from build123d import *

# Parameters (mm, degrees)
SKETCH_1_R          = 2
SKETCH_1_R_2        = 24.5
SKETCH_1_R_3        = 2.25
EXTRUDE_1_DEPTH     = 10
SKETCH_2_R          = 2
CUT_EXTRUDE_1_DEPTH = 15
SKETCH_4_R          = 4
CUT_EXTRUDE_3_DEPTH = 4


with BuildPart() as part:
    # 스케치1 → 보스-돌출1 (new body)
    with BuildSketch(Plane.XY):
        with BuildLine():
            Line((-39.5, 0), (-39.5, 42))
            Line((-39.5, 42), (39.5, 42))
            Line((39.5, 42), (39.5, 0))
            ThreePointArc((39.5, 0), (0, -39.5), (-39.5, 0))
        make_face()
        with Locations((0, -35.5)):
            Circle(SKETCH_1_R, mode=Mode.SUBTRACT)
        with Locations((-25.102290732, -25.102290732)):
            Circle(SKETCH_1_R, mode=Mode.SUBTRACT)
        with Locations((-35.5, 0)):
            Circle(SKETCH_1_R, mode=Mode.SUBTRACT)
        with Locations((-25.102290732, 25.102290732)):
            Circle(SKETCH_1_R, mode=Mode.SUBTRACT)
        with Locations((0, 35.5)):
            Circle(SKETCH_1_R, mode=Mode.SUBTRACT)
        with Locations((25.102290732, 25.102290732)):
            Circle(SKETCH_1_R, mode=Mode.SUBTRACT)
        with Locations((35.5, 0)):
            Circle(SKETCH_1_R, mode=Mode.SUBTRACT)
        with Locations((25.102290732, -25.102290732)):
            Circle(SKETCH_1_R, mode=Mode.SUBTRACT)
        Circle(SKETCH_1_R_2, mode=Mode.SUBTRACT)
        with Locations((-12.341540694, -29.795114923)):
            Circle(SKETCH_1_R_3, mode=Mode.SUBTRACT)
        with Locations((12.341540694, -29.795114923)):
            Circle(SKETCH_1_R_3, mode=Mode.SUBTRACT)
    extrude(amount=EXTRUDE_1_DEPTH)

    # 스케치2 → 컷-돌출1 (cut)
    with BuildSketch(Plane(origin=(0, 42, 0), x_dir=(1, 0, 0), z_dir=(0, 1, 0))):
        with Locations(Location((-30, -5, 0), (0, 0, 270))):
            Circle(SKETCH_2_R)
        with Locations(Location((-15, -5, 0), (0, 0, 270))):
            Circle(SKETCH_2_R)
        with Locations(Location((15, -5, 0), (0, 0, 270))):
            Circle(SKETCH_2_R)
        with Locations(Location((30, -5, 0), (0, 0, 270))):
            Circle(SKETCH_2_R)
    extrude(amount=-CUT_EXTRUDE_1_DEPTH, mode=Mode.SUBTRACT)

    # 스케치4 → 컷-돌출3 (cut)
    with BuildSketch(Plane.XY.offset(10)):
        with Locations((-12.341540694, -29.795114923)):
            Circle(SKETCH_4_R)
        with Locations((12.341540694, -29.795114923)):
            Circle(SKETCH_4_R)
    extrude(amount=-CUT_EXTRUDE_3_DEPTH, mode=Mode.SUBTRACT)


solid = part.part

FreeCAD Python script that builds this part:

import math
import FreeCAD as App
import Part
import Sketcher

doc = App.newDocument("Part")
body = doc.addObject("PartDesign::Body", "Body")

sketch1 = doc.addObject("Sketcher::SketchObject", "Sketch")
body.addObject(sketch1)
sketch1.AttachmentSupport = (doc.XY_Plane, [""])
sketch1.MapMode = "FlatFace"
sketch1.addGeometry(Part.LineSegment(App.Vector(-39.5, 42, 0), App.Vector(-39.5, 0, 0)), False)
sketch1.addGeometry(Part.ArcOfCircle(Part.Circle(App.Vector(0, 0, 0), App.Vector(0, 0, 1), 39.5), math.radians(180), math.radians(360)), False)
sketch1.addGeometry(Part.LineSegment(App.Vector(39.5, 0, 0), App.Vector(39.5, 42, 0)), False)
sketch1.addGeometry(Part.LineSegment(App.Vector(39.5, 42, 0), App.Vector(-39.5, 42, 0)), False)
sketch1.addGeometry(Part.Circle(App.Vector(25.1, -25.1, 0), App.Vector(0, 0, 1), 2), False)
sketch1.addGeometry(Part.Circle(App.Vector(12.3, -29.8, 0), App.Vector(0, 0, 1), 2.2), False)
sketch1.addGeometry(Part.Circle(App.Vector(0, -35.5, 0), App.Vector(0, 0, 1), 2), False)
sketch1.addGeometry(Part.Circle(App.Vector(-12.3, -29.8, 0), App.Vector(0, 0, 1), 2.2), False)
sketch1.addGeometry(Part.Circle(App.Vector(-25.1, -25.1, 0), App.Vector(0, 0, 1), 2), False)
sketch1.addGeometry(Part.Circle(App.Vector(35.5, 0, 0), App.Vector(0, 0, 1), 2), False)
sketch1.addGeometry(Part.Circle(App.Vector(25.1, 25.1, 0), App.Vector(0, 0, 1), 2), False)
sketch1.addGeometry(Part.Circle(App.Vector(0, 0, 0), App.Vector(0, 0, 1), 24.5), False)
sketch1.addGeometry(Part.Circle(App.Vector(-35.5, 0, 0), App.Vector(0, 0, 1), 2), False)
sketch1.addGeometry(Part.Circle(App.Vector(0, 35.5, 0), App.Vector(0, 0, 1), 2), False)
sketch1.addGeometry(Part.Circle(App.Vector(-25.1, 25.1, 0), App.Vector(0, 0, 1), 2), False)
sketch1.addConstraint(Sketcher.Constraint("Tangent", 0, 2, 1, 1))
sketch1.addConstraint(Sketcher.Constraint("Tangent", 1, 2, 2, 1))
sketch1.addConstraint(Sketcher.Constraint("Coincident", 2, 2, 3, 1))
sketch1.addConstraint(Sketcher.Constraint("Coincident", 3, 2, 0, 1))
sketch1.addConstraint(Sketcher.Constraint("Vertical", 0))
sketch1.addConstraint(Sketcher.Constraint("Vertical", 2))
sketch1.addConstraint(Sketcher.Constraint("Horizontal", 3))
sketch1.addConstraint(Sketcher.Constraint("Coincident", 1, 3, -1, 1))
sketch1.addConstraint(Sketcher.Constraint("Coincident", 11, 3, -1, 1))
sketch1.addConstraint(Sketcher.Constraint("Equal", 4, 6))
sketch1.addConstraint(Sketcher.Constraint("Equal", 5, 7))
sketch1.addConstraint(Sketcher.Constraint("Equal", 6, 8))
sketch1.addConstraint(Sketcher.Constraint("Equal", 8, 9))
sketch1.addConstraint(Sketcher.Constraint("Equal", 9, 10))
sketch1.addConstraint(Sketcher.Constraint("Equal", 10, 12))
sketch1.addConstraint(Sketcher.Constraint("Equal", 12, 13))
sketch1.addConstraint(Sketcher.Constraint("Equal", 13, 14))
sketch1.addConstraint(Sketcher.Constraint("Symmetric", 8, 3, 10, 3, -1, 1))
sketch1.addConstraint(Sketcher.Constraint("Symmetric", 9, 3, 12, 3, -1, 1))
sketch1.addConstraint(Sketcher.Constraint("Symmetric", 6, 3, 13, 3, -1, 1))
sketch1.addConstraint(Sketcher.Constraint("Symmetric", 4, 3, 14, 3, -1, 1))
sketch1.addConstraint(Sketcher.Constraint("Symmetric", 5, 3, 7, 3, -2))
sketch1.addConstraint(Sketcher.Constraint("Symmetric", 4, 3, 8, 3, -2))
sketch1.addConstraint(Sketcher.Constraint("PointOnObject", 6, 3, -2))
sketch1.addConstraint(Sketcher.Constraint("PointOnObject", 9, 3, -1))
sketch1.addConstraint(Sketcher.Constraint("Diameter", 4, 4.0))
sketch1.addConstraint(Sketcher.Constraint("Diameter", 11, 49.0))
sketch1.addConstraint(Sketcher.Constraint("Diameter", 5, 4.5))
sketch1.addConstraint(Sketcher.Constraint("Radius", 1, 39.5))
sketch1.addConstraint(Sketcher.Constraint("DistanceY", 0, 2, 0, 1, 42.0))
sketch1.addConstraint(Sketcher.Constraint("DistanceX", 0, 2, 12, 3, 4.0))
sketch1.addConstraint(Sketcher.Constraint("DistanceY", 6, 3, -1, 1, 35.5))
sketch1.addConstraint(Sketcher.Constraint("DistanceX", -1, 1, 4, 3, 25.102291))
sketch1.addConstraint(Sketcher.Constraint("DistanceY", 4, 3, -1, 1, 25.102291))
sketch1.addConstraint(Sketcher.Constraint("DistanceX", -1, 1, 5, 3, 12.341541))
sketch1.addConstraint(Sketcher.Constraint("DistanceY", 5, 3, -1, 1, 29.795115))
pad1 = doc.addObject("PartDesign::Pad", "Pad")
body.addObject(pad1)
pad1.Profile = sketch1
pad1.Length = 10

sketch2 = doc.addObject("Sketcher::SketchObject", "Sketch001")
body.addObject(sketch2)
sketch2.AttachmentSupport = (doc.XZ_Plane, [""])
sketch2.MapMode = "FlatFace"
sketch2.AttachmentOffset = App.Placement(App.Vector(0, 0, -42), App.Rotation())
sketch2.addGeometry(Part.Circle(App.Vector(-30, 5, 0), App.Vector(0, 0, 1), 2), False)
sketch2.addGeometry(Part.Circle(App.Vector(-15, 5, 0), App.Vector(0, 0, 1), 2), False)
sketch2.addGeometry(Part.Circle(App.Vector(15, 5, 0), App.Vector(0, 0, 1), 2), False)
sketch2.addGeometry(Part.Circle(App.Vector(30, 5, 0), App.Vector(0, 0, 1), 2), False)
sketch2.addConstraint(Sketcher.Constraint("Equal", 0, 1))
sketch2.addConstraint(Sketcher.Constraint("Equal", 1, 2))
sketch2.addConstraint(Sketcher.Constraint("Equal", 2, 3))
sketch2.addConstraint(Sketcher.Constraint("Symmetric", 1, 3, 2, 3, -2))
sketch2.addConstraint(Sketcher.Constraint("Symmetric", 0, 3, 3, 3, -2))
sketch2.addConstraint(Sketcher.Constraint("Horizontal", 0, 3, 1, 3))
sketch2.addConstraint(Sketcher.Constraint("Diameter", 0, 4.0))
sketch2.addConstraint(Sketcher.Constraint("DistanceX", 0, 3, -1, 1, 30.0))
sketch2.addConstraint(Sketcher.Constraint("DistanceY", -1, 1, 0, 3, 5.0))
sketch2.addConstraint(Sketcher.Constraint("DistanceX", 1, 3, -1, 1, 15.0))
pocket1 = doc.addObject("PartDesign::Pocket", "Pocket")
body.addObject(pocket1)
pocket1.Profile = sketch2
pocket1.Length = 15
pocket1.Reversed = True

sketch3 = doc.addObject("Sketcher::SketchObject", "Sketch002")
body.addObject(sketch3)
sketch3.AttachmentSupport = (doc.XY_Plane, [""])
sketch3.MapMode = "FlatFace"
sketch3.AttachmentOffset = App.Placement(App.Vector(0, 0, 10), App.Rotation())
sketch3.addGeometry(Part.Circle(App.Vector(-12.3, -29.8, 0), App.Vector(0, 0, 1), 4), False)
sketch3.addGeometry(Part.Circle(App.Vector(12.3, -29.8, 0), App.Vector(0, 0, 1), 4), False)
sketch3.addConstraint(Sketcher.Constraint("Equal", 0, 1))
sketch3.addConstraint(Sketcher.Constraint("Symmetric", 0, 3, 1, 3, -2))
sketch3.addConstraint(Sketcher.Constraint("Diameter", 0, 8.0))
sketch3.addConstraint(Sketcher.Constraint("DistanceX", 0, 3, -1, 1, 12.341541))
sketch3.addConstraint(Sketcher.Constraint("DistanceY", 0, 3, -1, 1, 29.795115))
pocket2 = doc.addObject("PartDesign::Pocket", "Pocket001")
body.addObject(pocket2)
pocket2.Profile = sketch3
pocket2.Length = 4

doc.recompute()
